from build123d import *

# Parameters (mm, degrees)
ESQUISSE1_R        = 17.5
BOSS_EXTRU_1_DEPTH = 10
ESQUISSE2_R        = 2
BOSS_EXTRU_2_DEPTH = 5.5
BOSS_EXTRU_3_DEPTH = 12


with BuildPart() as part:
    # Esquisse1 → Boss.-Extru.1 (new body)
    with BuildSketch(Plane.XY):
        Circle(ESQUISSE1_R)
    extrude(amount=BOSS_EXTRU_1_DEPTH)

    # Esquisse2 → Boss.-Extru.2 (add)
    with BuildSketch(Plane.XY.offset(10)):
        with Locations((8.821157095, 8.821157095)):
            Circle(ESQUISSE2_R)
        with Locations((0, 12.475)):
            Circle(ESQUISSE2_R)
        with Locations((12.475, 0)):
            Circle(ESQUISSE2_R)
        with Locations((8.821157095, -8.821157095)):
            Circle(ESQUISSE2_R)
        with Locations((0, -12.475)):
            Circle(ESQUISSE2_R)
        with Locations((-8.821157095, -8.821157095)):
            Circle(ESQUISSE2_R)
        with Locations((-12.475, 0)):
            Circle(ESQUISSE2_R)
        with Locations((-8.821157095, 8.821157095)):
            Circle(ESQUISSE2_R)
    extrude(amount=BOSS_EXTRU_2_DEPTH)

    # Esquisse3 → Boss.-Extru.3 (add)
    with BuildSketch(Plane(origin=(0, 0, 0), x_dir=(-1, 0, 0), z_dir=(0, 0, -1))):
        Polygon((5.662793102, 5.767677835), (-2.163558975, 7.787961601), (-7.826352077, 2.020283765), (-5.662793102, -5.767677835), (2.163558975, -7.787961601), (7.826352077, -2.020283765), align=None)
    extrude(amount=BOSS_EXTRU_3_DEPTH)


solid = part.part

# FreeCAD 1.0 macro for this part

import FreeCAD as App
import Part
import Sketcher
from FreeCAD import Vector
Q = App.Units.Quantity

doc = App.newDocument("Part")
body = doc.addObject("PartDesign::Body", "Body")

sketch1 = doc.addObject("Sketcher::SketchObject", "Sketch")
body.addObject(sketch1)
sketch1.AttachmentSupport = (doc.XY_Plane, [""])
sketch1.MapMode = "FlatFace"
sketch1.addGeometry(Part.Circle(Vector(0, 0, 0), Vector(0, 0, 1), 17.5), False)
sketch1.addConstraint([
    Sketcher.Constraint("Coincident", 0, 3, -1, 1),
    Sketcher.Constraint("Diameter", 0, Q("35 mm")),
])
pad1 = doc.addObject("PartDesign::Pad", "Pad")
body.addObject(pad1)
pad1.Profile = sketch1
pad1.Length = 10

sketch2 = doc.addObject("Sketcher::SketchObject", "Sketch001")
body.addObject(sketch2)
sketch2.AttachmentSupport = (doc.XY_Plane, [""])
sketch2.MapMode = "FlatFace"
sketch2.AttachmentOffset = App.Placement(Vector(0, 0, 10), App.Rotation())
sketch2.addGeometry([
    Part.Circle(Vector(8.821157, 8.821157, 0), Vector(0, 0, 1), 2),
    Part.Circle(Vector(0, 12.475, 0), Vector(0, 0, 1), 2),
    Part.Circle(Vector(12.475, 0, 0), Vector(0, 0, 1), 2),
    Part.Circle(Vector(8.821157, -8.821157, 0), Vector(0, 0, 1), 2),
    Part.Circle(Vector(0, -12.475, 0), Vector(0, 0, 1), 2),
    Part.Circle(Vector(-8.821157, -8.821157, 0), Vector(0, 0, 1), 2),
    Part.Circle(Vector(-12.475, 0, 0), Vector(0, 0, 1), 2),
    Part.Circle(Vector(-8.821157, 8.821157, 0), Vector(0, 0, 1), 2),
], False)
sketch2.addConstraint([
    Sketcher.Constraint("Equal", 0, 1),
    Sketcher.Constraint("Equal", 1, 2),
    Sketcher.Constraint("Equal", 2, 3),
    Sketcher.Constraint("Equal", 3, 4),
    Sketcher.Constraint("Equal", 4, 5),
    Sketcher.Constraint("Equal", 5, 6),
    Sketcher.Constraint("Equal", 6, 7),
    Sketcher.Constraint("Symmetric", 1, 3, 4, 3, -1, 1),
    Sketcher.Constraint("Symmetric", 0, 3, 5, 3, -1, 1),
    Sketcher.Constraint("Symmetric", 2, 3, 6, 3, -1, 1),
    Sketcher.Constraint("Symmetric", 3, 3, 7, 3, -1, 1),
    Sketcher.Constraint("Symmetric", 3, 3, 5, 3, -2),
    Sketcher.Constraint("PointOnObject", 1, 3, -2),
    Sketcher.Constraint("PointOnObject", 2, 3, -1),
    Sketcher.Constraint("Diameter", 0, Q("4 mm")),
    Sketcher.Constraint("DistanceY", 4, 3, 1, 3, Q("24.95 mm")),
    Sketcher.Constraint("DistanceX", -1, 1, 2, 3, Q("12.475 mm")),
    Sketcher.Constraint("DistanceX", -1, 1, 0, 3, Q("8.821157 mm")),
    Sketcher.Constraint("DistanceY", -1, 1, 0, 3, Q("8.821157 mm")),
])
pad2 = doc.addObject("PartDesign::Pad", "Pad001")
body.addObject(pad2)
pad2.Profile = sketch2
pad2.Length = 5.5

sketch3 = doc.addObject("Sketcher::SketchObject", "Sketch002")
body.addObject(sketch3)
sketch3.AttachmentSupport = (doc.XY_Plane, [""])
sketch3.MapMode = "FlatFace"
sketch3.addGeometry([
    Part.LineSegment(Vector(-5.662793, 5.767678, 0), Vector(2.163559, 7.787962, 0)),
    Part.LineSegment(Vector(2.163559, 7.787962, 0), Vector(7.826352, 2.020284, 0)),
    Part.LineSegment(Vector(7.826352, 2.020284, 0), Vector(5.662793, -5.767678, 0)),
    Part.LineSegment(Vector(5.662793, -5.767678, 0), Vector(-2.163559, -7.787962, 0)),
    Part.LineSegment(Vector(-2.163559, -7.787962, 0), Vector(-7.826352, -2.020284, 0)),
    Part.LineSegment(Vector(-7.826352, -2.020284, 0), Vector(-5.662793, 5.767678, 0)),
], False)
sketch3.addConstraint([
    Sketcher.Constraint("Coincident", 0, 2, 1, 1),
    Sketcher.Constraint("Coincident", 1, 2, 2, 1),
    Sketcher.Constraint("Coincident", 2, 2, 3, 1),
    Sketcher.Constraint("Coincident", 3, 2, 4, 1),
    Sketcher.Constraint("Coincident", 4, 2, 5, 1),
    Sketcher.Constraint("Coincident", 5, 2, 0, 1),
    Sketcher.Constraint("Symmetric", 0, 2, 3, 2, -1, 1),
    Sketcher.Constraint("Symmetric", 1, 2, 4, 2, -1, 1),
    Sketcher.Constraint("Symmetric", 2, 2, 5, 2, -1, 1),
    Sketcher.Constraint("Equal", 0, 1),
    Sketcher.Constraint("Equal", 1, 2),
    Sketcher.Constraint("DistanceX", -1, 1, 0, 2, Q("2.163559 mm")),
    Sketcher.Constraint("DistanceY", -1, 1, 0, 2, Q("7.787962 mm")),
    Sketcher.Constraint("DistanceX", 2, 2, 1, 2, Q("2.163559 mm")),
    Sketcher.Constraint("DistanceY", 2, 2, 1, 2, Q("7.787962 mm")),
])
pad3 = doc.addObject("PartDesign::Pad", "Pad002")
body.addObject(pad3)
pad3.Profile = sketch3
pad3.Length = 12
pad3.Reversed = True

doc.recompute()
